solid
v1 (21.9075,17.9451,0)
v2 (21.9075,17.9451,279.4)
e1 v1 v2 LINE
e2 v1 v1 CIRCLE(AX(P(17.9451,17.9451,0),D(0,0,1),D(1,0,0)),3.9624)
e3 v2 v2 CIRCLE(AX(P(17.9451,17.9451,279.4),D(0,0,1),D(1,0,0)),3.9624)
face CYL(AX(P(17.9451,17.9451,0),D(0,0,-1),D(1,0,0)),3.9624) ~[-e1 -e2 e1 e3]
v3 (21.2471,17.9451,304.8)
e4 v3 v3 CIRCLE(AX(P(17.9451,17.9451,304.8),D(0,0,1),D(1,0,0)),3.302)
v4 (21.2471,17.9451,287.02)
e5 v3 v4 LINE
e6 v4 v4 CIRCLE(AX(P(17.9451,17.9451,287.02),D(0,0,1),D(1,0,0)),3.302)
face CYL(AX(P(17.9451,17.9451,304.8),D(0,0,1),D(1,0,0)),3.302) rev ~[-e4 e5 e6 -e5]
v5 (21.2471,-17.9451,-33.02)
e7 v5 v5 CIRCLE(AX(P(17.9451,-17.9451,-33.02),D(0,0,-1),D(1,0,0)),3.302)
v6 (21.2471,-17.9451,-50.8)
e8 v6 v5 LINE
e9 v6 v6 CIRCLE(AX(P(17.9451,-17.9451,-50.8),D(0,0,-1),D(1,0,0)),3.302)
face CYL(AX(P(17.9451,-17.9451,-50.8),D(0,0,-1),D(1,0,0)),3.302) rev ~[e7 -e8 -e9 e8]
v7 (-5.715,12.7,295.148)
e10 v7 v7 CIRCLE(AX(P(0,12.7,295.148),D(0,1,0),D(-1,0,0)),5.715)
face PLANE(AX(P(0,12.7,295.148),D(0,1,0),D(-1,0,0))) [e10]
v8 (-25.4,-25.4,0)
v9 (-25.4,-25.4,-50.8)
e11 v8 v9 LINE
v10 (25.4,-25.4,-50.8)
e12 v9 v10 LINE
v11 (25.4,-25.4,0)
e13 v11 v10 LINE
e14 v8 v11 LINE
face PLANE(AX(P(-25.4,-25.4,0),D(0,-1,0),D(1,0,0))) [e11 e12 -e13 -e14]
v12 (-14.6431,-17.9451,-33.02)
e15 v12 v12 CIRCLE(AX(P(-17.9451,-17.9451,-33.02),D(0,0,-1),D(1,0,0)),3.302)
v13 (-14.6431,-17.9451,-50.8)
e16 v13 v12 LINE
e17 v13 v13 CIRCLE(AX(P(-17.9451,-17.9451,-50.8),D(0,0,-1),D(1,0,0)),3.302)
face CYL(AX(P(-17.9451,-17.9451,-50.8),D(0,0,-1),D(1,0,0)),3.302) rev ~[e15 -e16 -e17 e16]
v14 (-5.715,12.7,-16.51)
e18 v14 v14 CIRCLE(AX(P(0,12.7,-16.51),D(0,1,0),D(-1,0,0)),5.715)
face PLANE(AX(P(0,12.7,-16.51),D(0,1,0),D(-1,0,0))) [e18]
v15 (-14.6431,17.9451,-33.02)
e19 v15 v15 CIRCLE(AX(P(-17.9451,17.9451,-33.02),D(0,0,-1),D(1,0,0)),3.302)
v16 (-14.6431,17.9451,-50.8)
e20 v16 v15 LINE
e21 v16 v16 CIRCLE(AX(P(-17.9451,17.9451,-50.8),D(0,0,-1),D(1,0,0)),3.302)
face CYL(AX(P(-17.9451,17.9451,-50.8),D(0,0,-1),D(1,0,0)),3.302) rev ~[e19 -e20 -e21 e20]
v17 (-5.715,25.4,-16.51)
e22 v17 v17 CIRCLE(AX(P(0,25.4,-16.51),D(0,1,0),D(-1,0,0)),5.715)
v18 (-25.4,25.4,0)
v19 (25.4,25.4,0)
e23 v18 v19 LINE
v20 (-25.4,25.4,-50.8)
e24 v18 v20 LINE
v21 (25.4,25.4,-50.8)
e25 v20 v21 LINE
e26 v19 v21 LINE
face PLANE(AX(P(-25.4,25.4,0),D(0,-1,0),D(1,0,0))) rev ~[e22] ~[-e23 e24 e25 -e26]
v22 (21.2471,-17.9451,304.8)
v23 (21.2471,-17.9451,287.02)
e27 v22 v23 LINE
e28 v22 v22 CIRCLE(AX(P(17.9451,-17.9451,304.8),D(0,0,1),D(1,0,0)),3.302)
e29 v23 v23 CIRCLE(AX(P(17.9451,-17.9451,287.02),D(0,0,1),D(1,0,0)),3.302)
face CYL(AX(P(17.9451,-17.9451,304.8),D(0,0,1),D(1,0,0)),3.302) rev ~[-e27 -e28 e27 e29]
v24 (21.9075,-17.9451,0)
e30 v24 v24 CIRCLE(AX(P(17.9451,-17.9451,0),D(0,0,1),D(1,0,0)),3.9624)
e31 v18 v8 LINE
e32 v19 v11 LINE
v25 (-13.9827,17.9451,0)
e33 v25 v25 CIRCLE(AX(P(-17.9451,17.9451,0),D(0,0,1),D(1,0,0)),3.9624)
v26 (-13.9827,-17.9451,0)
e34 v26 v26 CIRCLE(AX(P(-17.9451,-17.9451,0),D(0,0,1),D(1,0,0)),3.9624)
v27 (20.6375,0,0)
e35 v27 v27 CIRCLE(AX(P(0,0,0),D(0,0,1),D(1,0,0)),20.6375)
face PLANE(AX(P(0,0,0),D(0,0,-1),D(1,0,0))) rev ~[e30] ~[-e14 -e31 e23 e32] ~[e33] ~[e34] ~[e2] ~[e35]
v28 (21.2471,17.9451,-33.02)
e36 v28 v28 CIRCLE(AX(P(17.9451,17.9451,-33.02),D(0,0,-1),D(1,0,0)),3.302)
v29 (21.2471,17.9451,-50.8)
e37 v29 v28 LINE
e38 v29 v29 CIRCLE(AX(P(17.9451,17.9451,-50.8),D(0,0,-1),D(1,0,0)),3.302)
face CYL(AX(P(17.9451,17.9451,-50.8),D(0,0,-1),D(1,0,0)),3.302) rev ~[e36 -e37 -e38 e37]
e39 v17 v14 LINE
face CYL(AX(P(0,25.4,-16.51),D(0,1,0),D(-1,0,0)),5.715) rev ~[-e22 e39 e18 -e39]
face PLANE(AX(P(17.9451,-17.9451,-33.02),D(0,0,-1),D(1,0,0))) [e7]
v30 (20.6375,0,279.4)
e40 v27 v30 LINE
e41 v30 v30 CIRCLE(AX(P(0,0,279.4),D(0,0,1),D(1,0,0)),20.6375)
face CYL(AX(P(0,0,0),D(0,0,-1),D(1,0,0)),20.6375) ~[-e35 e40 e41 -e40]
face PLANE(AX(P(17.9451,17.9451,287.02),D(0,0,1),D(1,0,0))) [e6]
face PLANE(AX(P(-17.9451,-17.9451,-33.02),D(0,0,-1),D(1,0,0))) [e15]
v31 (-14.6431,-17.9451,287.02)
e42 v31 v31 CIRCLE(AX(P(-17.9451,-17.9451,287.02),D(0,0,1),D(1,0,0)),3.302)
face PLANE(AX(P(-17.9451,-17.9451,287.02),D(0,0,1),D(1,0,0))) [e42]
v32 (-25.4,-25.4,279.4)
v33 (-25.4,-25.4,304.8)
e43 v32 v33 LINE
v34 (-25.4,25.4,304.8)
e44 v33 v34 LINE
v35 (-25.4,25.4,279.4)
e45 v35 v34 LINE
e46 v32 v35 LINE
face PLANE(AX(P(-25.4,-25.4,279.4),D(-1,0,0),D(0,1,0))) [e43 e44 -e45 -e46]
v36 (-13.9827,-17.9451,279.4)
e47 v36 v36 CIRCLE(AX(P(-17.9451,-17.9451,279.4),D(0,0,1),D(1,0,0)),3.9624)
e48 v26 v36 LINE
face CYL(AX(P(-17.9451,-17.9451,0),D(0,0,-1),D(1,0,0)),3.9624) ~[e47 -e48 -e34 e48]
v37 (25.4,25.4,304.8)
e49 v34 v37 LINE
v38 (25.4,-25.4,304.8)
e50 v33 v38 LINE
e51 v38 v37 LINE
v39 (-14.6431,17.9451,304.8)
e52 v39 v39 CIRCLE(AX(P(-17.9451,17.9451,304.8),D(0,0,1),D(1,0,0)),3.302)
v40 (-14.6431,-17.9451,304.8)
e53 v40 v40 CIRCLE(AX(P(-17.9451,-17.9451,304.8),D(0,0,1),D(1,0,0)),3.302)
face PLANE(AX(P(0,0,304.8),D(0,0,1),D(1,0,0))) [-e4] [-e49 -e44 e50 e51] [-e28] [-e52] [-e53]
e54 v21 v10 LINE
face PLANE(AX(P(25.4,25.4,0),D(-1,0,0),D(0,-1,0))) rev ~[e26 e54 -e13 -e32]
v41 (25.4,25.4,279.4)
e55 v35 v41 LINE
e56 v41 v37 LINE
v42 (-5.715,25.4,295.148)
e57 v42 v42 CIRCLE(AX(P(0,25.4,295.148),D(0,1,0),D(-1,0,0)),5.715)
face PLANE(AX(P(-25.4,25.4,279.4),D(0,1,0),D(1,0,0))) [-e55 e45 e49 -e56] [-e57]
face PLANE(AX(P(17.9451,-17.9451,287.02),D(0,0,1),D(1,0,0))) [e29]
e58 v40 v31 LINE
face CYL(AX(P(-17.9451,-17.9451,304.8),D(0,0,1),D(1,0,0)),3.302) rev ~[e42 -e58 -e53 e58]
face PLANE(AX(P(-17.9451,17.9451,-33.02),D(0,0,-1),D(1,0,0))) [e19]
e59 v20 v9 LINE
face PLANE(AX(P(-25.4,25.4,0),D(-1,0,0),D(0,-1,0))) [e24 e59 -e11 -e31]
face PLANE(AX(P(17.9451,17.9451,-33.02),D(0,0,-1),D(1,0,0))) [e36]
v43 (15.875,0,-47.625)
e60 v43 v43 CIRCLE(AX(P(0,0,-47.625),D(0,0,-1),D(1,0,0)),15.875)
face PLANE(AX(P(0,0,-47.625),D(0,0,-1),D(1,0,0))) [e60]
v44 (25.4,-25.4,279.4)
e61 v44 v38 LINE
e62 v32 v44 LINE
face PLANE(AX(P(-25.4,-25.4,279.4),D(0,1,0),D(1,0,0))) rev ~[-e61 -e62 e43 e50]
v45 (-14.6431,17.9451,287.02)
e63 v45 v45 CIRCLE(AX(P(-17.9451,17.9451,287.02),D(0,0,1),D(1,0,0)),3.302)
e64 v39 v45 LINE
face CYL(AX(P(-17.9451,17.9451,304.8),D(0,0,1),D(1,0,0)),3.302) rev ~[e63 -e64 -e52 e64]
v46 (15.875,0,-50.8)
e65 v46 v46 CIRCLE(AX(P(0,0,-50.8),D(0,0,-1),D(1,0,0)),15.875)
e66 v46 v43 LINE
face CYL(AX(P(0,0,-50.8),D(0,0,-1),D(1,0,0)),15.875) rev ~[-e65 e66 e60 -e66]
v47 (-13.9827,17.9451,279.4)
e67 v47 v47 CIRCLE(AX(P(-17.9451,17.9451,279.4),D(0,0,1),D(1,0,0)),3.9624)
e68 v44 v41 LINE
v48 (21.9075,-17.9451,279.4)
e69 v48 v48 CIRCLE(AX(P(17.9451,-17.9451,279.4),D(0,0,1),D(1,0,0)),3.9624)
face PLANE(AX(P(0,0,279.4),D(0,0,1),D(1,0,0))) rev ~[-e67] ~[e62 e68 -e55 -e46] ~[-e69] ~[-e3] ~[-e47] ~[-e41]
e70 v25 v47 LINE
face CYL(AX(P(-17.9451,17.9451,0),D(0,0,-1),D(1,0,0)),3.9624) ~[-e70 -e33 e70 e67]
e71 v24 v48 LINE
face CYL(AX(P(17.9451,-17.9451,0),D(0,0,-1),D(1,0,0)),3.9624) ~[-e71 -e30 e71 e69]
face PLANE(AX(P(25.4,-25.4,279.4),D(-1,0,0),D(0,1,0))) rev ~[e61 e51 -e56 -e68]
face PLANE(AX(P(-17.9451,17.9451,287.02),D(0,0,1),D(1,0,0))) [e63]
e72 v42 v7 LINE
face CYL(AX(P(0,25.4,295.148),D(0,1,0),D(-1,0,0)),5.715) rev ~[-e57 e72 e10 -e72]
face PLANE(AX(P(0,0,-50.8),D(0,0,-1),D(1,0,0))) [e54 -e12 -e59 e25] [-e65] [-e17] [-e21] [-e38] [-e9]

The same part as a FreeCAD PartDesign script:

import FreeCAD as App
import Part
import Sketcher
Q = App.Units.Quantity


def add_polygon(sketch, points):
    """Adds a closed chain of lines whose ends are joined by coincident constraints."""
    first, n = sketch.GeometryCount, len(points)
    for a, b in zip(points, points[1:] + points[:1]):
        sketch.addGeometry(Part.LineSegment(App.Vector(*a, 0), App.Vector(*b, 0)), False)
    for i in range(n):
        sketch.addConstraint(Sketcher.Constraint("Coincident", first + i, 2, first + (i + 1) % n, 1))

doc = App.newDocument("Part")
params = doc.addObject("Spreadsheet::Sheet", "Params")
for row, (alias, value) in enumerate([
    ("sketch1_diameter", "1.625 in"),
    ("sketch1_diameter2", "0.312 in"),
    ("pad1_length", "11 in"),
    ("sketch2_width", "2 in"),
    ("pad2_length", "1 in"),
    ("sketch3_width", "2 in"),
    ("pad3_length", "2 in"),
    ("sketch4_diameter", "0.26 in"),
    ("pocket1_length", "0.7 in"),
    ("sketch5_diameter", "0.26 in"),
    ("pocket2_length", "0.7 in"),
    ("sketch6_diameter", "1.25 in"),
    ("pocket3_length", "0.125 in"),
    ("sketch7_diameter", "0.45 in"),
    ("pocket4_length", "0.5 in"),
], start=1):
    params.set(f"A{row}", alias)
    params.set(f"B{row}", "=" + value)
    params.setAlias(f"B{row}", alias)

body = doc.addObject("PartDesign::Body", "Body")
body.AllowCompound = True

sketch1 = body.newObject("Sketcher::SketchObject", "Sketch")
sketch1.AttachmentSupport = (doc.getObject("XY_Plane"), [""])
sketch1.MapMode = "FlatFace"
sketch1.addGeometry([
    Part.Circle(App.Vector(0, 0, 0), App.Vector(0, 0, 1), 20.6),
    Part.Circle(App.Vector(-17.9, 17.9, 0), App.Vector(0, 0, 1), 4),
    Part.Circle(App.Vector(17.9, 17.9, 0), App.Vector(0, 0, 1), 4),
    Part.Circle(App.Vector(17.9, -17.9, 0), App.Vector(0, 0, 1), 4),
    Part.Circle(App.Vector(-17.9, -17.9, 0), App.Vector(0, 0, 1), 4),
], False)
sketch1.addConstraint([
    Sketcher.Constraint("Coincident", 0, 3, -1, 1),
    Sketcher.Constraint("Equal", 1, 2),
    Sketcher.Constraint("Equal", 2, 3),
    Sketcher.Constraint("Equal", 3, 4),
    Sketcher.Constraint("Symmetric", 1, 3, 3, 3, -1, 1),
    Sketcher.Constraint("Symmetric", 2, 3, 4, 3, -1, 1),
    Sketcher.Constraint("Symmetric", 1, 3, 2, 3, -2),
    Sketcher.Constraint("Diameter", 0, Q("1.625 in")),
    Sketcher.Constraint("Diameter", 1, Q("0.312 in")),
    Sketcher.Constraint("DistanceX", 1, 3, 2, 3, Q("1.413 in")),
    Sketcher.Constraint("DistanceY", 3, 3, 2, 3, Q("1.413 in")),
])
sketch1.setExpression("Constraints[7]", "Params.sketch1_diameter")
sketch1.setExpression("Constraints[8]", "Params.sketch1_diameter2")
pad1 = body.newObject("PartDesign::Pad", "Pad")
pad1.Profile = sketch1
pad1.setExpression("Length", "Params.pad1_length")

sketch2 = body.newObject("Sketcher::SketchObject", "Sketch001")
sketch2.AttachmentSupport = (doc.getObject("XY_Plane"), [""])
sketch2.MapMode = "FlatFace"
sketch2.AttachmentOffset = App.Placement(App.Vector(0, 0, 11 * 25.4), App.Rotation())
add_polygon(sketch2, [(-25, 25), (-25, -25), (25, -25), (25, 25)])
sketch2.addConstraint([
    Sketcher.Constraint("Vertical", 0),
    Sketcher.Constraint("Horizontal", 1),
    Sketcher.Constraint("Vertical", 2),
    Sketcher.Constraint("Horizontal", 3),
    Sketcher.Constraint("Symmetric", 0, 2, 2, 2, -1, 1),
    Sketcher.Constraint("Equal", 3, 0),
    Sketcher.Constraint("DistanceX", 1, 1, 1, 2, Q("2 in")),
])
sketch2.setExpression("Constraints[10]", "Params.sketch2_width")
pad2 = body.newObject("PartDesign::Pad", "Pad001")
pad2.Profile = sketch2
pad2.setExpression("Length", "Params.pad2_length")

sketch3 = body.newObject("Sketcher::SketchObject", "Sketch002")
sketch3.AttachmentSupport = (doc.getObject("XY_Plane"), [""])
sketch3.MapMode = "FlatFace"
add_polygon(sketch3, [(-25, -25), (-25, 25), (25, 25), (25, -25)])
sketch3.addConstraint([
    Sketcher.Constraint("Vertical", 0),
    Sketcher.Constraint("Horizontal", 1),
    Sketcher.Constraint("Vertical", 2),
    Sketcher.Constraint("Horizontal", 3),
    Sketcher.Constraint("Symmetric", 0, 2, 2, 2, -1, 1),
    Sketcher.Constraint("Equal", 3, 0),
    Sketcher.Constraint("DistanceX", 1, 1, 1, 2, Q("2 in")),
])
sketch3.setExpression("Constraints[10]", "Params.sketch3_width")
pad3 = body.newObject("PartDesign::Pad", "Pad002")
pad3.Profile = sketch3
pad3.setExpression("Length", "Params.pad3_length")
pad3.Reversed = True

sketch4 = body.newObject("Sketcher::SketchObject", "Sketch003")
sketch4.AttachmentSupport = (doc.getObject("XY_Plane"), [""])
sketch4.MapMode = "FlatFace"
sketch4.AttachmentOffset = App.Placement(App.Vector(0, 0, -2 * 25.4), App.Rotation())
sketch4.addGeometry([
    Part.Circle(App.Vector(-17.9, -17.9, 0), App.Vector(0, 0, 1), 3.3),
    Part.Circle(App.Vector(17.9, -17.9, 0), App.Vector(0, 0, 1), 3.3),
    Part.Circle(App.Vector(17.9, 17.9, 0), App.Vector(0, 0, 1), 3.3),
    Part.Circle(App.Vector(-17.9, 17.9, 0), App.Vector(0, 0, 1), 3.3),
], False)
sketch4.addConstraint([
    Sketcher.Constraint("Equal", 0, 1),
    Sketcher.Constraint("Equal", 1, 2),
    Sketcher.Constraint("Equal", 2, 3),
    Sketcher.Constraint("Symmetric", 0, 3, 2, 3, -1, 1),
    Sketcher.Constraint("Symmetric", 1, 3, 3, 3, -1, 1),
    Sketcher.Constraint("Symmetric", 0, 3, 1, 3, -2),
    Sketcher.Constraint("Diameter", 0, Q("0.26 in")),
    Sketcher.Constraint("DistanceX", 0, 3, 1, 3, Q("1.413 in")),
    Sketcher.Constraint("DistanceY", 1, 3, 2, 3, Q("1.413 in")),
])
sketch4.setExpression("Constraints[6]", "Params.sketch4_diameter")
pocket1 = body.newObject("PartDesign::Pocket", "Pocket")
pocket1.Profile = sketch4
pocket1.setExpression("Length", "Params.pocket1_length")
pocket1.Reversed = True

sketch5 = body.newObject("Sketcher::SketchObject", "Sketch004")
sketch5.AttachmentSupport = (doc.getObject("XY_Plane"), [""])
sketch5.MapMode = "FlatFace"
sketch5.AttachmentOffset = App.Placement(App.Vector(0, 0, 12 * 25.4), App.Rotation())
sketch5.addGeometry([
    Part.Circle(App.Vector(17.9, -17.9, 0), App.Vector(0, 0, 1), 3.3),
    Part.Circle(App.Vector(-17.9, -17.9, 0), App.Vector(0, 0, 1), 3.3),
    Part.Circle(App.Vector(17.9, 17.9, 0), App.Vector(0, 0, 1), 3.3),
    Part.Circle(App.Vector(-17.9, 17.9, 0), App.Vector(0, 0, 1), 3.3),
], False)
sketch5.addConstraint([
    Sketcher.Constraint("Equal", 0, 1),
    Sketcher.Constraint("Equal", 1, 2),
    Sketcher.Constraint("Equal", 2, 3),
    Sketcher.Constraint("Symmetric", 1, 3, 2, 3, -1, 1),
    Sketcher.Constraint("Symmetric", 0, 3, 3, 3, -1, 1),
    Sketcher.Constraint("Symmetric", 0, 3, 1, 3, -2),
    Sketcher.Constraint("Diameter", 0, Q("0.26 in")),
    Sketcher.Constraint("DistanceX", 1, 3, 0, 3, Q("1.413 in")),
    Sketcher.Constraint("DistanceY", 0, 3, 2, 3, Q("1.413 in")),
])
sketch5.setExpression("Constraints[6]", "Params.sketch5_diameter")
pocket2 = body.newObject("PartDesign::Pocket", "Pocket001")
pocket2.Profile = sketch5
pocket2.setExpression("Length", "Params.pocket2_length")

sketch6 = body.newObject("Sketcher::SketchObject", "Sketch005")
sketch6.AttachmentSupport = (doc.getObject("XY_Plane"), [""])
sketch6.MapMode = "FlatFace"
sketch6.AttachmentOffset = App.Placement(App.Vector(0, 0, -2 * 25.4), App.Rotation())
sketch6.addGeometry(Part.Circle(App.Vector(0, 0, 0), App.Vector(0, 0, 1), 16), False)
sketch6.addConstraint([
    Sketcher.Constraint("Coincident", 0, 3, -1, 1),
    Sketcher.Constraint("Diameter", 0, Q("1.25 in")),
])
sketch6.setExpression("Constraints[1]", "Params.sketch6_diameter")
pocket3 = body.newObject("PartDesign::Pocket", "Pocket002")
pocket3.Profile = sketch6
pocket3.setExpression("Length", "Params.pocket3_length")
pocket3.Reversed = True

sketch7 = body.newObject("Sketcher::SketchObject", "Sketch006")
sketch7.AttachmentSupport = (doc.getObject("XZ_Plane"), [""])
sketch7.MapMode = "FlatFace"
sketch7.AttachmentOffset = App.Placement(App.Vector(0, 0, -1 * 25.4), App.Rotation())
sketch7.addGeometry([
    Part.Circle(App.Vector(0, -17, 0), App.Vector(0, 0, 1), 6),
    Part.Circle(App.Vector(0, 295, 0), App.Vector(0, 0, 1), 6),
], False)
sketch7.addConstraint([
    Sketcher.Constraint("Equal", 0, 1),
    Sketcher.Constraint("PointOnObject", 0, 3, -2),
    Sketcher.Constraint("PointOnObject", 1, 3, -2),
    Sketcher.Constraint("Diameter", 0, Q("0.45 in")),
    Sketcher.Constraint("DistanceY", 0, 3, -1, 1, Q("0.65 in")),
    Sketcher.Constraint("DistanceY", -1, 1, 1, 3, Q("11.62 in")),
])
sketch7.setExpression("Constraints[3]", "Params.sketch7_diameter")
pocket4 = body.newObject("PartDesign::Pocket", "Pocket003")
pocket4.Profile = sketch7
pocket4.setExpression("Length", "Params.pocket4_length")
pocket4.Reversed = True

doc.recompute()
